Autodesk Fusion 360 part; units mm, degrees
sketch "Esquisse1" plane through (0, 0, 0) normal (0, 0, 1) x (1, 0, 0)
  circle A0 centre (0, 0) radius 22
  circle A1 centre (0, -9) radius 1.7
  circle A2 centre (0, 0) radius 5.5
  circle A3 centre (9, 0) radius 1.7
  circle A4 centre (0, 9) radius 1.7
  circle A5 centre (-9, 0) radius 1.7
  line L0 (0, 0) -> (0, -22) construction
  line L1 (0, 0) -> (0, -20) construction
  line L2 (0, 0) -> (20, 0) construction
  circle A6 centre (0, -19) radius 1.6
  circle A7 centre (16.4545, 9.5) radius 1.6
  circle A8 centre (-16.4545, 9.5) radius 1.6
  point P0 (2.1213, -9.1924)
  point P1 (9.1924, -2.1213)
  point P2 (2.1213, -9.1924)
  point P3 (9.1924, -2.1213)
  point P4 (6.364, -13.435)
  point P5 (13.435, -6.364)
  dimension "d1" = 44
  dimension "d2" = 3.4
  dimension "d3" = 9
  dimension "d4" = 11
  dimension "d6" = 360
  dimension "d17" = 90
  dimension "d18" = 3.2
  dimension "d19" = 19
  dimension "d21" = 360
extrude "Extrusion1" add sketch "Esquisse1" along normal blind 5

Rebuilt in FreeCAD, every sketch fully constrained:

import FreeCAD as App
import Part
import Sketcher

doc = App.newDocument("Part")
body = doc.addObject("PartDesign::Body", "Body")

# Sketch on XY plane
sketch1 = body.newObject("Sketcher::SketchObject", "Sketch")
sketch1.AttachmentSupport = (doc.getObject("XY_Plane"), [""])
sketch1.MapMode = "FlatFace"
sketch1.addGeometry(Part.Circle(App.Vector(0, 0, 0), App.Vector(0, 0, 1), 22), False)
sketch1.addGeometry(Part.Circle(App.Vector(0, -19, 0), App.Vector(0, 0, 1), 1.6), False)
sketch1.addGeometry(Part.Circle(App.Vector(0, -9, 0), App.Vector(0, 0, 1), 1.7), False)
sketch1.addGeometry(Part.Circle(App.Vector(-16.4545, 9.5, 0), App.Vector(0, 0, 1), 1.6), False)
sketch1.addGeometry(Part.Circle(App.Vector(-9, 0, 0), App.Vector(0, 0, 1), 1.7), False)
sketch1.addGeometry(Part.Circle(App.Vector(0, 0, 0), App.Vector(0, 0, 1), 5.5), False)
sketch1.addGeometry(Part.Circle(App.Vector(9, 0, 0), App.Vector(0, 0, 1), 1.7), False)
sketch1.addGeometry(Part.Circle(App.Vector(0, 9, 0), App.Vector(0, 0, 1), 1.7), False)
sketch1.addGeometry(Part.Circle(App.Vector(16.4545, 9.5, 0), App.Vector(0, 0, 1), 1.6), False)
sketch1.addConstraint(Sketcher.Constraint("Coincident", 0, 3, -1, 1))
sketch1.addConstraint(Sketcher.Constraint("Coincident", 5, 3, -1, 1))
sketch1.addConstraint(Sketcher.Constraint("Equal", 1, 3))
sketch1.addConstraint(Sketcher.Constraint("Equal", 2, 4))
sketch1.addConstraint(Sketcher.Constraint("Equal", 4, 6))
sketch1.addConstraint(Sketcher.Constraint("Equal", 6, 7))
sketch1.addConstraint(Sketcher.Constraint("Equal", 3, 8))
sketch1.addConstraint(Sketcher.Constraint("Symmetric", 4, 3, 6, 3, -1, 1))
sketch1.addConstraint(Sketcher.Constraint("Symmetric", 2, 3, 7, 3, -1, 1))
sketch1.addConstraint(Sketcher.Constraint("Symmetric", 3, 3, 8, 3, -2))
sketch1.addConstraint(Sketcher.Constraint("PointOnObject", 1, 3, -2))
sketch1.addConstraint(Sketcher.Constraint("PointOnObject", 2, 3, -2))
sketch1.addConstraint(Sketcher.Constraint("PointOnObject", 4, 3, -1))
sketch1.addConstraint(Sketcher.Constraint("Diameter", 0, 44.0))
sketch1.addConstraint(Sketcher.Constraint("Diameter", 5, 11.0))
sketch1.addConstraint(Sketcher.Constraint("Diameter", 1, 3.2))
sketch1.addConstraint(Sketcher.Constraint("Diameter", 2, 3.4))
sketch1.addConstraint(Sketcher.Constraint("DistanceY", 1, 3, -1, 1, 19.0))
sketch1.addConstraint(Sketcher.Constraint("DistanceY", 2, 3, -1, 1, 9.0))
sketch1.addConstraint(Sketcher.Constraint("DistanceX", 4, 3, -1, 1, 9.0))
sketch1.addConstraint(Sketcher.Constraint("DistanceY", -1, 1, 3, 3, 9.5))
sketch1.addConstraint(Sketcher.Constraint("DistanceX", 3, 3, -1, 1, 16.4545))
pad1 = body.newObject("PartDesign::Pad", "Pad")
pad1.Profile = sketch1
pad1.Length = 5

doc.recompute()
